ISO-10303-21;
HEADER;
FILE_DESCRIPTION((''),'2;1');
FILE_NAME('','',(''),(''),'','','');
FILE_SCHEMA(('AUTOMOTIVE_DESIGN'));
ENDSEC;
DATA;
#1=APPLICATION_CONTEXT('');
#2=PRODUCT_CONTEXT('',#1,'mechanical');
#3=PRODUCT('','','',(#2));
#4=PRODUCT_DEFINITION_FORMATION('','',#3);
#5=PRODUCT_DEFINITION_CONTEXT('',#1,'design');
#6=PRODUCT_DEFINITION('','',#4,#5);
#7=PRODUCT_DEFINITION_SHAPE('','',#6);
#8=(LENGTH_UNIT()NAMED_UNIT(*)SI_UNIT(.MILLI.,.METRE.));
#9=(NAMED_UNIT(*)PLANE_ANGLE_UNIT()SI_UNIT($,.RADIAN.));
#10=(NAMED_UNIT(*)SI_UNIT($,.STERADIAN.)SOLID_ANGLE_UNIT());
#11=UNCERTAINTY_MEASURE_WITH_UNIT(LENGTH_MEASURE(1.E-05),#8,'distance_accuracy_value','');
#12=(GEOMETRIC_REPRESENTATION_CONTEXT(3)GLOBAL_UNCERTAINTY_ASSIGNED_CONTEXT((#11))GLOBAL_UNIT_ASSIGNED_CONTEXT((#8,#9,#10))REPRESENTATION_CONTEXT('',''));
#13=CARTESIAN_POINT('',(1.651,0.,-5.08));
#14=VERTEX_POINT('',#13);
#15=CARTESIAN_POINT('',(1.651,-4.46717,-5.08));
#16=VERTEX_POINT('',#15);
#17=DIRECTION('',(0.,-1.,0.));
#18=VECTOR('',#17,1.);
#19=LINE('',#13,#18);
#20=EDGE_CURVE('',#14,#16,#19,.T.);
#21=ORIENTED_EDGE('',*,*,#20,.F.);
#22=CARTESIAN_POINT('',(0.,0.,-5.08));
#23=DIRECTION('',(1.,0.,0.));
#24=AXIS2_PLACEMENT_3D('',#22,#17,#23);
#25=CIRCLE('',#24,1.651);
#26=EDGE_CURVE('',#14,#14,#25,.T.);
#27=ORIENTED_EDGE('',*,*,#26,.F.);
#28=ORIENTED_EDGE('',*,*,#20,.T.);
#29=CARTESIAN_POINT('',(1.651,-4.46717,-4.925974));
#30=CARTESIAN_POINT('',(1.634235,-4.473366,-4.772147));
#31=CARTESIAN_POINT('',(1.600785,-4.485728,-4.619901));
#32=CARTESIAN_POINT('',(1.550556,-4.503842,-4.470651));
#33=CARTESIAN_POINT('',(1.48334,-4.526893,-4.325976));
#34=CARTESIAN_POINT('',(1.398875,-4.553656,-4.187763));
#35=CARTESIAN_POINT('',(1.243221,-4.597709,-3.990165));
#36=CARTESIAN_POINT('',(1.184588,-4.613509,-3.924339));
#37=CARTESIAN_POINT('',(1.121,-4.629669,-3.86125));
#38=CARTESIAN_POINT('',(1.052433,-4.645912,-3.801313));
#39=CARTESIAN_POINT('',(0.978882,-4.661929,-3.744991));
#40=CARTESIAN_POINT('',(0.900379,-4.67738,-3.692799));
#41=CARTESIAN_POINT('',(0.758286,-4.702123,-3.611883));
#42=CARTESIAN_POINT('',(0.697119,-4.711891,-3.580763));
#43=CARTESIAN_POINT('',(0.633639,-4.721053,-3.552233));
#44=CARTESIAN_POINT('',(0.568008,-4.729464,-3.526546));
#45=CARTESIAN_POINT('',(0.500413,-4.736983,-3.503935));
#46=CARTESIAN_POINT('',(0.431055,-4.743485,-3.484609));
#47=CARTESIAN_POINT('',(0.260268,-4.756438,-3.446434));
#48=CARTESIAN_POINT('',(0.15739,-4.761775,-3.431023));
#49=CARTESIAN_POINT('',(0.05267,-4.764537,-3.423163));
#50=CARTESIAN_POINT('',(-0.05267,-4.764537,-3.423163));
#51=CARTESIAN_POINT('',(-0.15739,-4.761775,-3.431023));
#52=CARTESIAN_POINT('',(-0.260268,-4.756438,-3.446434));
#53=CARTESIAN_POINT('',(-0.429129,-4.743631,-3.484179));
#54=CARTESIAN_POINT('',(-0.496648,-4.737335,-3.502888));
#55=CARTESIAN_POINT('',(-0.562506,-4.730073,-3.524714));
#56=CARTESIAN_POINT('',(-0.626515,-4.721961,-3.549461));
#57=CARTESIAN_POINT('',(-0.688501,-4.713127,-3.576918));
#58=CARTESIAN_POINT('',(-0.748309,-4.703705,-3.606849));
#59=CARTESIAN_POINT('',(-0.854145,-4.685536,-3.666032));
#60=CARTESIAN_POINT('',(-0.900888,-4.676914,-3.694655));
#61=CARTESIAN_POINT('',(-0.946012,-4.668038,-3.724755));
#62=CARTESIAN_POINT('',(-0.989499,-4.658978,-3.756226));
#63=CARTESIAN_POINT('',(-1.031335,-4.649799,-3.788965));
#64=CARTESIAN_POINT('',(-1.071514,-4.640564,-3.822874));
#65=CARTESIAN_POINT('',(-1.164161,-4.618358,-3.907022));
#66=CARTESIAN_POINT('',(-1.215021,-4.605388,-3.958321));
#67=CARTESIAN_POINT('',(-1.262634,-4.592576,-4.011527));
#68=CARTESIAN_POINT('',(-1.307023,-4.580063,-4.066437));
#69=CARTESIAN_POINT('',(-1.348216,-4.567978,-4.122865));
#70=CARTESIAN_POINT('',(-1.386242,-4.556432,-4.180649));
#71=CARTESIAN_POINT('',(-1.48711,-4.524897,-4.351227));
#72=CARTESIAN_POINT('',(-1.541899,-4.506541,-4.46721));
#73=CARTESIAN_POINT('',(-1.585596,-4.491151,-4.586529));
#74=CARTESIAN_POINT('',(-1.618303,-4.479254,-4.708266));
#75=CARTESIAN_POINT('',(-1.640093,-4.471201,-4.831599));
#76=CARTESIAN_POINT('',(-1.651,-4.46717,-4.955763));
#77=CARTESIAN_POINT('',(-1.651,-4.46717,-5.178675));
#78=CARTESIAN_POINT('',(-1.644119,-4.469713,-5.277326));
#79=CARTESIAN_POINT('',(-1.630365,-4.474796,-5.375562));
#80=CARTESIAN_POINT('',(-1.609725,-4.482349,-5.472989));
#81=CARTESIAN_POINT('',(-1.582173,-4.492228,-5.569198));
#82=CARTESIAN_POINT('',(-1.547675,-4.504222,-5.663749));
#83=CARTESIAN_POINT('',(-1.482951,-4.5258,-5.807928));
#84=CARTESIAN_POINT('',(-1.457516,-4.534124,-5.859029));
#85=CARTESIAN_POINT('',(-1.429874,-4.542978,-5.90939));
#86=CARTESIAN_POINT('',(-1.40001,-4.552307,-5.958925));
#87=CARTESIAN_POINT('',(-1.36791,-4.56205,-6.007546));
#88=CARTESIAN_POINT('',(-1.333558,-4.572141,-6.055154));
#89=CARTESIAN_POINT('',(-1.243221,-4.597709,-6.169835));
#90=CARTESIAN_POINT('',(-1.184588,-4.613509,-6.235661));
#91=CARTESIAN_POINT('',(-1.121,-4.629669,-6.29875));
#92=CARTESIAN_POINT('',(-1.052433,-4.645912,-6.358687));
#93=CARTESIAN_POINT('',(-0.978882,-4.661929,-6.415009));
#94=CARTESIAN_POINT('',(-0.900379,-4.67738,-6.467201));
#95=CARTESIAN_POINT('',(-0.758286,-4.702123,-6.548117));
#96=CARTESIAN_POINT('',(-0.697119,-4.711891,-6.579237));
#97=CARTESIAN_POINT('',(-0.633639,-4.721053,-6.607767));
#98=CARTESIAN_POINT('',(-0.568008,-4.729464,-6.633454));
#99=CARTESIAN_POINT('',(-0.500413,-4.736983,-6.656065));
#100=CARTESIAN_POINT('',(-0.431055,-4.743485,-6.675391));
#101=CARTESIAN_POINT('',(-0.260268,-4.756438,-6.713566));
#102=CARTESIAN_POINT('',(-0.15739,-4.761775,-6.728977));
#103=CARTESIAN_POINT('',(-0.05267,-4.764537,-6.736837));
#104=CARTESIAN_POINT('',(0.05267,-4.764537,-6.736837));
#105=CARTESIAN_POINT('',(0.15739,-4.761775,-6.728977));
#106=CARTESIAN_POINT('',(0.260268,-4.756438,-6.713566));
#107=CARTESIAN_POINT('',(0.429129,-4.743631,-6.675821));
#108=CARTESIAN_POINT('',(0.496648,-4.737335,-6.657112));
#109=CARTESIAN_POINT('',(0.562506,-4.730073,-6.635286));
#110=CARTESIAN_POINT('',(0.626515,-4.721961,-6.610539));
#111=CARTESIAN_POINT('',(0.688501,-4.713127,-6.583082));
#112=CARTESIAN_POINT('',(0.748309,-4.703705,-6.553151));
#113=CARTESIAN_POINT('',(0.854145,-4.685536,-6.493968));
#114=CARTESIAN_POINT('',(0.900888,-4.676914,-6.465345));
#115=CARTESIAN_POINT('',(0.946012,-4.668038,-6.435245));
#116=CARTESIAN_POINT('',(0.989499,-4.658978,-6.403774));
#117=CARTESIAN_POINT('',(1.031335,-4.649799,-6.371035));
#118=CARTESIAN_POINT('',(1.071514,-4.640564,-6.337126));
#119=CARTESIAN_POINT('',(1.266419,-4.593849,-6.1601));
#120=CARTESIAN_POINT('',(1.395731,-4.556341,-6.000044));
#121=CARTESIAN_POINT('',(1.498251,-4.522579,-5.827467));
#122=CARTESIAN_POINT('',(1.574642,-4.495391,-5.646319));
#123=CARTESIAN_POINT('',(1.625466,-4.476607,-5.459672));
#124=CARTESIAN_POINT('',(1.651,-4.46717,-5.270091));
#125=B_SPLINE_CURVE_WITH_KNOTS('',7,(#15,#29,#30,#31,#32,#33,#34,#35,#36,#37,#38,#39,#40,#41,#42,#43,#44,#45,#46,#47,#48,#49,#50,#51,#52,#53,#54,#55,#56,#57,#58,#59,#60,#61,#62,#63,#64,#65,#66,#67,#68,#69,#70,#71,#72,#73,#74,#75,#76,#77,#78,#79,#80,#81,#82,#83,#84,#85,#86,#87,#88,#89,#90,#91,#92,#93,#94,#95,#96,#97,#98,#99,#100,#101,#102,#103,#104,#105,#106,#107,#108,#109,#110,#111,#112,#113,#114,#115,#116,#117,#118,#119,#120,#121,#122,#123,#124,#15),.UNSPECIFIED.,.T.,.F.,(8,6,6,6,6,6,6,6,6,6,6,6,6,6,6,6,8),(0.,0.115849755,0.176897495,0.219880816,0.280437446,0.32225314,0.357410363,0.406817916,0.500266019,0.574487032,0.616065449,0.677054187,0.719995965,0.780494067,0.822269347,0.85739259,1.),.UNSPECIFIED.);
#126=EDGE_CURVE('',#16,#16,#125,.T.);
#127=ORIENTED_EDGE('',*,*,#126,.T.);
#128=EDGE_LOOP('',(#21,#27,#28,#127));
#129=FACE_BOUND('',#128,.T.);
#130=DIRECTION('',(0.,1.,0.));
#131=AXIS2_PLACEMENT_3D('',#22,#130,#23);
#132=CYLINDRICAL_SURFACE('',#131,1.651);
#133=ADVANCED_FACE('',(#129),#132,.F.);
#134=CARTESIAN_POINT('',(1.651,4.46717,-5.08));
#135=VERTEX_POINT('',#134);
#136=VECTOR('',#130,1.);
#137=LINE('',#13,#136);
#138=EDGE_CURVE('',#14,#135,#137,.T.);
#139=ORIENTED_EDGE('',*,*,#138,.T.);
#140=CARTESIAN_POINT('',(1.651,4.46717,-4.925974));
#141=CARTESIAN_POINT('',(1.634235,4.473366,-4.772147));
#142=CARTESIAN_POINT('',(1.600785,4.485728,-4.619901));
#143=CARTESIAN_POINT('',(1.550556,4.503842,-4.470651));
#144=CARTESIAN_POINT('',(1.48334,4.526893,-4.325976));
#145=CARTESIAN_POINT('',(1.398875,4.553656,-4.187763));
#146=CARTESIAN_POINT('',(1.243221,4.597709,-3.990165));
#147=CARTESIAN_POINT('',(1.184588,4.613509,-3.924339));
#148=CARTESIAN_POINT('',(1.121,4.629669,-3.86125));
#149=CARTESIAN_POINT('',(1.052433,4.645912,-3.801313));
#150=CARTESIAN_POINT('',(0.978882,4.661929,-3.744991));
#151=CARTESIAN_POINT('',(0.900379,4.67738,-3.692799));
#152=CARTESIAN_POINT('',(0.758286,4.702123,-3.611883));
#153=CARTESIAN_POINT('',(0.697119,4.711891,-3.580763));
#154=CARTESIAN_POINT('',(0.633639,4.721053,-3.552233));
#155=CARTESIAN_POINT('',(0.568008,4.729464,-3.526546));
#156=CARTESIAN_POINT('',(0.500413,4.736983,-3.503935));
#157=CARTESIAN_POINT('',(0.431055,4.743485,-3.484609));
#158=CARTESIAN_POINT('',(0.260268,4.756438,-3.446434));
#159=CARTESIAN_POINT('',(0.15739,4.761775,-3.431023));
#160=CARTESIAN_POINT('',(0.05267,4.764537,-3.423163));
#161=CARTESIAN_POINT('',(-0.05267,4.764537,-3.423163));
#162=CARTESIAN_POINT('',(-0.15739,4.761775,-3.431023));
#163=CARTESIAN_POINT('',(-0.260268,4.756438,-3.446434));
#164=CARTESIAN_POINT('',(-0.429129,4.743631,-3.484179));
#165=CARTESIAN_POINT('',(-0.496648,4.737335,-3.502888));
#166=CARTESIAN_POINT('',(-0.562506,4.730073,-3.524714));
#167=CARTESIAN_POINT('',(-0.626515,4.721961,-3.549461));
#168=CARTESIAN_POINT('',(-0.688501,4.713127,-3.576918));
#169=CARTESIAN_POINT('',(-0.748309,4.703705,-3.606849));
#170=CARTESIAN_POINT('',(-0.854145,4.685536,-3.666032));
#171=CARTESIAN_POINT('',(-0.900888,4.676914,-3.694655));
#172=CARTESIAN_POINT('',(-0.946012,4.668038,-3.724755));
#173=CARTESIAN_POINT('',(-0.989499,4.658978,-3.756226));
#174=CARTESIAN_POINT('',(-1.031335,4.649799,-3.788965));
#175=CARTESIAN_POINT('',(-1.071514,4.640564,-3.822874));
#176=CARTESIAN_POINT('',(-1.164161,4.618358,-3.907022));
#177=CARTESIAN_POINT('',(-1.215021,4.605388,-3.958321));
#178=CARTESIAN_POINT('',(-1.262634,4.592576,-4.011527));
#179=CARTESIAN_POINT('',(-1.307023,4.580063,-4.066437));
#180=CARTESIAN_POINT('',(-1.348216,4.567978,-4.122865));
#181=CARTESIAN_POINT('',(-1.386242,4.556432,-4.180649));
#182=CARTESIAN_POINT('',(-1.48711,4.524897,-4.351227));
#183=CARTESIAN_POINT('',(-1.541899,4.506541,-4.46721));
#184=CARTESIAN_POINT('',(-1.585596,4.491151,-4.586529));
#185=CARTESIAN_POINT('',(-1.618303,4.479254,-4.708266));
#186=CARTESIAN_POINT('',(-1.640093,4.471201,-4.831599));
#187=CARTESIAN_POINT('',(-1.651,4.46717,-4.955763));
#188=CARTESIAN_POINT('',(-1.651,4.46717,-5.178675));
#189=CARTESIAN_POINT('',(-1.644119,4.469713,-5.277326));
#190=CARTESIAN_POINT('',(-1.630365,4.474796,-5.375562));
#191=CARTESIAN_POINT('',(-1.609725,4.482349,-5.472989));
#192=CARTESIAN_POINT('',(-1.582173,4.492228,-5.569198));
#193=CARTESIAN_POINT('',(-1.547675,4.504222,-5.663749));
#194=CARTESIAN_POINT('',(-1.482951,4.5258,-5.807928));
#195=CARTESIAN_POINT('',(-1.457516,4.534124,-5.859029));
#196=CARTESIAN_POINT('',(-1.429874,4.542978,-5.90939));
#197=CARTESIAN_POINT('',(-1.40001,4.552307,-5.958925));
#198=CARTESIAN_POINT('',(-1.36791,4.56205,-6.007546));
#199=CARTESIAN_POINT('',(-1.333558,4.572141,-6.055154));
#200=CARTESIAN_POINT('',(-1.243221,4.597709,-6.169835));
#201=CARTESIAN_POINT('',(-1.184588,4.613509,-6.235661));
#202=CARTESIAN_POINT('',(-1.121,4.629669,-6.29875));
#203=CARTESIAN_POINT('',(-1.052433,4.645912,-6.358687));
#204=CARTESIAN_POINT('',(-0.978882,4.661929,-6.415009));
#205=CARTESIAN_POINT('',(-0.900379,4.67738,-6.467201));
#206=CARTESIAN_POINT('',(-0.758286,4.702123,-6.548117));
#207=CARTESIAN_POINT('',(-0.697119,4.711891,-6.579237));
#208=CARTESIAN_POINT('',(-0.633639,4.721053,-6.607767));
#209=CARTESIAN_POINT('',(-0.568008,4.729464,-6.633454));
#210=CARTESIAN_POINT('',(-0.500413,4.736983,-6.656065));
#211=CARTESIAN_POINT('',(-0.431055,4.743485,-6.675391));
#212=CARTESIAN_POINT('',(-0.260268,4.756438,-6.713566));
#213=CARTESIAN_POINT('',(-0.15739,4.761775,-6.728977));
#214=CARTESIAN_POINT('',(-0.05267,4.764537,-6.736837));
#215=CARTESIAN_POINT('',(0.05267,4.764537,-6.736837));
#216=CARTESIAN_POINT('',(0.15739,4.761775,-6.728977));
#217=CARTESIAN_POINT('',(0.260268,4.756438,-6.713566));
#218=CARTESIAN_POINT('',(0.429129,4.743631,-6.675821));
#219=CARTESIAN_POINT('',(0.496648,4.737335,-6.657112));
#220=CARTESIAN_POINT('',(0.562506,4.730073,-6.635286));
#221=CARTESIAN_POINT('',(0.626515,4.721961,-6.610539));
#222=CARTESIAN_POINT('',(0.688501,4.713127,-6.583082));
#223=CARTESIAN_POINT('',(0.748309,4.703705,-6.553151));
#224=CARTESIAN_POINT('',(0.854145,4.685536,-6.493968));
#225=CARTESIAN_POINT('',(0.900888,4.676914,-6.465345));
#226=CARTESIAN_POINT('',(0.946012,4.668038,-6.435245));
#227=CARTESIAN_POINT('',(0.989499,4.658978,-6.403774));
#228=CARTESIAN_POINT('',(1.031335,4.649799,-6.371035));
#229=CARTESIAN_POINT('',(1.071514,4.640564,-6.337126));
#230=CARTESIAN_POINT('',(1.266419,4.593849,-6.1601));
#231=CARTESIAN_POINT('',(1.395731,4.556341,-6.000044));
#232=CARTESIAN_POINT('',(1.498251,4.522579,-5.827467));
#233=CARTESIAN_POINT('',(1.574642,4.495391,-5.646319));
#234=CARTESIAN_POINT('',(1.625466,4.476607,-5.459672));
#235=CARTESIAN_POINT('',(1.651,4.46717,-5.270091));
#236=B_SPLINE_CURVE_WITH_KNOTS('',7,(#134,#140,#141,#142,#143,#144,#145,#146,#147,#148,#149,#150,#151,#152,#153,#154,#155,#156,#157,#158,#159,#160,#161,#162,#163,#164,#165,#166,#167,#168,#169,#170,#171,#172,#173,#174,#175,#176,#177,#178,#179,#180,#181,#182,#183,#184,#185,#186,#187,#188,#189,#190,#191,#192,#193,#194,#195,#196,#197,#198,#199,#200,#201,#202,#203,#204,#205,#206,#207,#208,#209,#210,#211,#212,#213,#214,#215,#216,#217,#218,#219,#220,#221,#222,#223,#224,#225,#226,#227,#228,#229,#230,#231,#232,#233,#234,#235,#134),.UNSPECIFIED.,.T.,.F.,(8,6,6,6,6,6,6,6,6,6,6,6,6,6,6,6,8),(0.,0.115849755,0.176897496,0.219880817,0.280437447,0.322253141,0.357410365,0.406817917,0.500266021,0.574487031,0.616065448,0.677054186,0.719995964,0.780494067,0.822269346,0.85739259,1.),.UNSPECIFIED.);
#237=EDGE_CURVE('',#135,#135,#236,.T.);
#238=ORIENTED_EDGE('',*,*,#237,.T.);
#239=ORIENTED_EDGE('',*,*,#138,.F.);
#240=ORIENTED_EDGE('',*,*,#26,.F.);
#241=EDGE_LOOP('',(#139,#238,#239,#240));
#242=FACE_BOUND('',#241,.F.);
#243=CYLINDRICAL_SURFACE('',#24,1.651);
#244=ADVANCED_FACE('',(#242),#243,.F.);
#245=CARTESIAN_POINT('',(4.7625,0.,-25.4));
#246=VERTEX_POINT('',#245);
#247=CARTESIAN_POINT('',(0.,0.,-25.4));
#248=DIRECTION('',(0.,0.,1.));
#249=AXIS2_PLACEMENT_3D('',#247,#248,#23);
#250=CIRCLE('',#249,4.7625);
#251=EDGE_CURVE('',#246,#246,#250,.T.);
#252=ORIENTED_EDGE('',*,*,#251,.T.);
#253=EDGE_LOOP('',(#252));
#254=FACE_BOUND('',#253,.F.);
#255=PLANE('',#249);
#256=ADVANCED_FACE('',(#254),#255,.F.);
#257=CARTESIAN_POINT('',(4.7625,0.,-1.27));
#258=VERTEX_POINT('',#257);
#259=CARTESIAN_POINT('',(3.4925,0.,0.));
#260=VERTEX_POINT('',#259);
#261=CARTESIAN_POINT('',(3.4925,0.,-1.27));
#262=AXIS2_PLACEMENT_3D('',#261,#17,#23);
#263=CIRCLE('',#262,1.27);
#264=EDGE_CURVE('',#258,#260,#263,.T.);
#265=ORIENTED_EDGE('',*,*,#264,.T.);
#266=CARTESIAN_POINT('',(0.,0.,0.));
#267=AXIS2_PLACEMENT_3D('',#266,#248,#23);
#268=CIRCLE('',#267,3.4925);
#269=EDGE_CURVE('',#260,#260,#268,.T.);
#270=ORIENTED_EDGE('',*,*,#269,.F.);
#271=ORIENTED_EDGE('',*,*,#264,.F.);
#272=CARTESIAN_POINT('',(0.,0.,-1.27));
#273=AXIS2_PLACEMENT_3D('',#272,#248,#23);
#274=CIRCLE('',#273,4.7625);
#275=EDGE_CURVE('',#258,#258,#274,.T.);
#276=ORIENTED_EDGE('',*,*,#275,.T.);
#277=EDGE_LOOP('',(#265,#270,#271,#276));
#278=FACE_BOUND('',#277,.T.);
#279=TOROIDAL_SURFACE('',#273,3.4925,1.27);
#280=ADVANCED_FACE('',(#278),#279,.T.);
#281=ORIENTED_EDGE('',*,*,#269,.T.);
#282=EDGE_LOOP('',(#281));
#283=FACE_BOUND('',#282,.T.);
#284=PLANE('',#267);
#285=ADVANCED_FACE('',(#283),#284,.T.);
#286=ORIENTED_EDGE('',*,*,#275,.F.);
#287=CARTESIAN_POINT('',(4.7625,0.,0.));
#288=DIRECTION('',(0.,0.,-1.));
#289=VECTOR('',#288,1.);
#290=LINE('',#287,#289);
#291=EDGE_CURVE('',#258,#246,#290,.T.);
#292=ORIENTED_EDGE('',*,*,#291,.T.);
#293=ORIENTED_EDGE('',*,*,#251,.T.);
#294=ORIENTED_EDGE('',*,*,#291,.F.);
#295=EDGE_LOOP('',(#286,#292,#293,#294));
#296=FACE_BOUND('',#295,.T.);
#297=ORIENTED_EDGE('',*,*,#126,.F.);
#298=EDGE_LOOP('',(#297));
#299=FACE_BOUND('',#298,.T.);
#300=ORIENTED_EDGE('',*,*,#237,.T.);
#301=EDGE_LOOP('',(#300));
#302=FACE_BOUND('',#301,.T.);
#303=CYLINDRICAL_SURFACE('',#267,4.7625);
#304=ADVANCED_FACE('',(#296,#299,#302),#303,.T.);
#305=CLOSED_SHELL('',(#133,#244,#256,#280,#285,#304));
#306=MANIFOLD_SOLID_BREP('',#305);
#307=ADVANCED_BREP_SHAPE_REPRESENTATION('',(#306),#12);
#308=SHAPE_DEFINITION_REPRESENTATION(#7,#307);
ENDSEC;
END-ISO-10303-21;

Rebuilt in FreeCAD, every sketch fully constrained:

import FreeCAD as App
import Part
import Sketcher
Q = App.Units.Quantity


def edges_at(feature, points):
    """Names of the edges that pass closest to the given points."""
    edges = feature.Shape.Edges
    near = lambda p: min(range(len(edges)), key=lambda i: edges[i].distToShape(Part.Vertex(*p))[0])
    return sorted({f"Edge{near(p) + 1}" for p in points})

doc = App.newDocument("Part")
body = doc.addObject("PartDesign::Body", "Body")

# Sketch on XY plane
sketch1 = doc.addObject("Sketcher::SketchObject", "Sketch")
body.addObject(sketch1)
sketch1.AttachmentSupport = (doc.XY_Plane, [""])
sketch1.MapMode = "FlatFace"
sketch1.addGeometry(Part.Circle(App.Vector(0, 0, 0), App.Vector(0, 0, 1), 4.8), False)
sketch1.addConstraint([
    Sketcher.Constraint("Coincident", 0, 3, -1, 1),
    Sketcher.Constraint("Diameter", 0, Q("0.375 in")),
])
pad1 = doc.addObject("PartDesign::Pad", "Pad")
body.addObject(pad1)
pad1.Profile = sketch1
pad1.Length = Q("1 in")
pad1.Reversed = True

# Sketch on XZ plane
sketch2 = doc.addObject("Sketcher::SketchObject", "Sketch001")
body.addObject(sketch2)
sketch2.AttachmentSupport = (doc.XZ_Plane, [""])
sketch2.MapMode = "FlatFace"
sketch2.addGeometry(Part.Circle(App.Vector(0, -5.1, 0), App.Vector(0, 0, 1), 1.7), False)
sketch2.addConstraint([
    Sketcher.Constraint("PointOnObject", 0, 3, -2),
    Sketcher.Constraint("Diameter", 0, Q("0.13 in")),
    Sketcher.Constraint("DistanceY", 0, 3, -1, 1, Q("0.2 in")),
])
pocket1 = doc.addObject("PartDesign::Pocket", "Pocket")
body.addObject(pocket1)
pocket1.Profile = sketch2
pocket1.Type = "ThroughAll"
pocket1.Midplane = True
doc.recompute()

fillet = doc.addObject("PartDesign::Fillet", "Fillet")
body.addObject(fillet)
fillet.Base = (pocket1, edges_at(pocket1, [(-4.763, 0, 0)]))
fillet.Radius = Q("0.05 in")

doc.recompute()
